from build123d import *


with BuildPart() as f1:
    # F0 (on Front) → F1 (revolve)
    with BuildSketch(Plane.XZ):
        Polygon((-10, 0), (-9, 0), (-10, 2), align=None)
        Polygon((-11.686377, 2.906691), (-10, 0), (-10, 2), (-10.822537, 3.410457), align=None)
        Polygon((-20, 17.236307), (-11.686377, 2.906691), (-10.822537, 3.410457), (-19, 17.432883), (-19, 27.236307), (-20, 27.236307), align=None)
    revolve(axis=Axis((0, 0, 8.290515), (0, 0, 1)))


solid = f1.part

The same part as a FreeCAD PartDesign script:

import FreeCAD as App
import Part
import Sketcher
from FreeCAD import Vector
Q = App.Units.Quantity


def add_polygon(sketch, points):
    """Adds a closed chain of lines whose ends are joined by coincident constraints."""
    first, n = sketch.GeometryCount, len(points)
    for a, b in zip(points, points[1:] + points[:1]):
        sketch.addGeometry(Part.LineSegment(App.Vector(*a, 0), App.Vector(*b, 0)), False)
    for i in range(n):
        sketch.addConstraint(Sketcher.Constraint("Coincident", first + i, 2, first + (i + 1) % n, 1))

doc = App.newDocument("Part")
body = doc.addObject("PartDesign::Body", "Body")

sketch1 = doc.addObject("Sketcher::SketchObject", "Sketch")
body.addObject(sketch1)
sketch1.AttachmentSupport = (doc.XZ_Plane, [""])
sketch1.MapMode = "FlatFace"
add_polygon(sketch1, [(-10, 0), (-9, 0), (-10, 2), (-10.8, 3.4), (-19, 17.4), (-19, 27.2), (-20, 27.2), (-20, 17.2), (-11.7, 2.9)])
sketch1.addConstraint([
    Sketcher.Constraint("Horizontal", 0),
    Sketcher.Constraint("Vertical", 4),
    Sketcher.Constraint("Horizontal", 5),
    Sketcher.Constraint("Vertical", 6),
    Sketcher.Constraint("PointOnObject", 0, 2, -1),
    Sketcher.Constraint("Parallel", 2, 3),
    Sketcher.Constraint("Parallel", 7, 8),
    Sketcher.Constraint("Vertical", 1, 2, 8, 2),
    Sketcher.Constraint("Equal", 0, 5),
    Sketcher.Constraint("DistanceX", 0, 1, 0, 2, Q("1 mm")),
    Sketcher.Constraint("DistanceY", 6, 2, 6, 1, Q("10 mm")),
    Sketcher.Constraint("DistanceX", 0, 2, -1, 1, Q("9 mm")),
    Sketcher.Constraint("DistanceY", -1, 1, 1, 2, Q("2 mm")),
    Sketcher.Constraint("DistanceX", 3, 2, -1, 1, Q("19 mm")),
    Sketcher.Constraint("Distance", 7, Q("16.56666 mm")),
    Sketcher.Constraint("DistanceY", 4, 1, 4, 2, Q("9.803424 mm")),
    Sketcher.Constraint("DistanceY", -1, 1, 7, 2, Q("2.906691 mm")),
    Sketcher.Constraint("DistanceY", 2, 2, 4, 2, Q("23.82585 mm")),
])
revolution = doc.addObject("PartDesign::Revolution", "Revolution")
body.addObject(revolution)
revolution.Profile = sketch1
revolution.ReferenceAxis = (sketch1, ["V_Axis"])
revolution.Angle = 360

doc.recompute()
